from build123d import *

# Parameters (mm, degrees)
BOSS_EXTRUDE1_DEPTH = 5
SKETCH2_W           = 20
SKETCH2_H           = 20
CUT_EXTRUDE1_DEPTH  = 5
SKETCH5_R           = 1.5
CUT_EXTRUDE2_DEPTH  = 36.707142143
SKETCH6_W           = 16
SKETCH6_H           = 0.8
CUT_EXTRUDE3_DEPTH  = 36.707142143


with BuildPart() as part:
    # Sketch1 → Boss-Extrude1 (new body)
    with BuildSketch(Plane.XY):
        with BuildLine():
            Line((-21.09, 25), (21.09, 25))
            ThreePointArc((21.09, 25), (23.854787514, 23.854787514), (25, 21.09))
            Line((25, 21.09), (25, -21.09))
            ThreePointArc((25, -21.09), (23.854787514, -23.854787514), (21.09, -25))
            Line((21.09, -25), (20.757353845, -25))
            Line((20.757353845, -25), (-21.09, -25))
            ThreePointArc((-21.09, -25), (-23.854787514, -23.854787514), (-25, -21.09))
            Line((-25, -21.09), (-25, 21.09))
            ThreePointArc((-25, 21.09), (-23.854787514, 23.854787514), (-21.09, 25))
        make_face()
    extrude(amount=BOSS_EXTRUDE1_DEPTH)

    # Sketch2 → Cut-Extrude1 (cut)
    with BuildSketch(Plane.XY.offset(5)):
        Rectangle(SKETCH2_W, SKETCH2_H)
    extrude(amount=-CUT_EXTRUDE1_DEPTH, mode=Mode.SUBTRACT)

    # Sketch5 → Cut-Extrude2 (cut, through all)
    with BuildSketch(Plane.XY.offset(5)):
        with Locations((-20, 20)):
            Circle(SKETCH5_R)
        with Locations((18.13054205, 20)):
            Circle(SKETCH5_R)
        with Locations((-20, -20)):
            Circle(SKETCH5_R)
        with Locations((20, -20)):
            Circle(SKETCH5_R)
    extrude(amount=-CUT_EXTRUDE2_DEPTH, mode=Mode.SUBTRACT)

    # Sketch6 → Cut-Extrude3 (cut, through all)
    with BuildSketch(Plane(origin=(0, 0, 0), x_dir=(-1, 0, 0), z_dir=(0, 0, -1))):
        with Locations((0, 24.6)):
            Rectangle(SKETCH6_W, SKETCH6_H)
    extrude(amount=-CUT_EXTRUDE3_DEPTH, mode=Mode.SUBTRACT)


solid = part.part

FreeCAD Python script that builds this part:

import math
import FreeCAD as App
import Part
import Sketcher
from FreeCAD import Vector

doc = App.newDocument("Part")
body = doc.addObject("PartDesign::Body", "Body")

sketch1 = doc.addObject("Sketcher::SketchObject", "Sketch")
body.addObject(sketch1)
sketch1.AttachmentSupport = (doc.XY_Plane, [""])
sketch1.MapMode = "FlatFace"
sketch1.addGeometry(Part.LineSegment(Vector(21.1, 25, 0), Vector(-21.1, 25, 0)), False)
sketch1.addGeometry(Part.ArcOfCircle(Part.Circle(Vector(-21.1, 21.1, 0), Vector(0, 0, 1), 3.9), math.radians(90), math.radians(180)), False)
sketch1.addGeometry(Part.LineSegment(Vector(-25, 21.1, 0), Vector(-25, -21.1, 0)), False)
sketch1.addGeometry(Part.ArcOfCircle(Part.Circle(Vector(-21.1, -21.1, 0), Vector(0, 0, 1), 3.9), math.radians(-180), math.radians(-90)), False)
sketch1.addGeometry(Part.LineSegment(Vector(-21.1, -25, 0), Vector(21.1, -25, 0)), False)
sketch1.addGeometry(Part.ArcOfCircle(Part.Circle(Vector(21.1, -21.1, 0), Vector(0, 0, 1), 3.9), math.radians(-90), math.radians(0)), False)
sketch1.addGeometry(Part.LineSegment(Vector(25, -21.1, 0), Vector(25, 21.1, 0)), False)
sketch1.addGeometry(Part.ArcOfCircle(Part.Circle(Vector(21.1, 21.1, 0), Vector(0, 0, 1), 3.9), math.radians(0), math.radians(90)), False)
sketch1.addConstraint(Sketcher.Constraint("Tangent", 0, 2, 1, 1))
sketch1.addConstraint(Sketcher.Constraint("Tangent", 1, 2, 2, 1))
sketch1.addConstraint(Sketcher.Constraint("Tangent", 2, 2, 3, 1))
sketch1.addConstraint(Sketcher.Constraint("Tangent", 3, 2, 4, 1))
sketch1.addConstraint(Sketcher.Constraint("Tangent", 4, 2, 5, 1))
sketch1.addConstraint(Sketcher.Constraint("Tangent", 5, 2, 6, 1))
sketch1.addConstraint(Sketcher.Constraint("Tangent", 6, 2, 7, 1))
sketch1.addConstraint(Sketcher.Constraint("Tangent", 7, 2, 0, 1))
sketch1.addConstraint(Sketcher.Constraint("Horizontal", 0))
sketch1.addConstraint(Sketcher.Constraint("Vertical", 2))
sketch1.addConstraint(Sketcher.Constraint("Horizontal", 4))
sketch1.addConstraint(Sketcher.Constraint("Vertical", 6))
sketch1.addConstraint(Sketcher.Constraint("Equal", 1, 3))
sketch1.addConstraint(Sketcher.Constraint("Equal", 3, 5))
sketch1.addConstraint(Sketcher.Constraint("Equal", 5, 7))
sketch1.addConstraint(Sketcher.Constraint("Symmetric", 1, 3, 5, 3, -1, 1))
sketch1.addConstraint(Sketcher.Constraint("Equal", 4, 2))
sketch1.addConstraint(Sketcher.Constraint("Radius", 1, 3.91))
sketch1.addConstraint(Sketcher.Constraint("DistanceY", -1, 1, 0, 2, 25.0))
pad1 = doc.addObject("PartDesign::Pad", "Pad")
body.addObject(pad1)
pad1.Profile = sketch1
pad1.Length = 5

sketch2 = doc.addObject("Sketcher::SketchObject", "Sketch001")
body.addObject(sketch2)
sketch2.AttachmentSupport = (doc.XY_Plane, [""])
sketch2.MapMode = "FlatFace"
sketch2.AttachmentOffset = App.Placement(Vector(0, 0, 5), App.Rotation())
sketch2.addGeometry(Part.LineSegment(Vector(-10, 10, 0), Vector(-10, -10, 0)), False)
sketch2.addGeometry(Part.LineSegment(Vector(-10, -10, 0), Vector(10, -10, 0)), False)
sketch2.addGeometry(Part.LineSegment(Vector(10, -10, 0), Vector(10, 10, 0)), False)
sketch2.addGeometry(Part.LineSegment(Vector(10, 10, 0), Vector(-10, 10, 0)), False)
sketch2.addConstraint(Sketcher.Constraint("Coincident", 0, 2, 1, 1))
sketch2.addConstraint(Sketcher.Constraint("Coincident", 1, 2, 2, 1))
sketch2.addConstraint(Sketcher.Constraint("Coincident", 2, 2, 3, 1))
sketch2.addConstraint(Sketcher.Constraint("Coincident", 3, 2, 0, 1))
sketch2.addConstraint(Sketcher.Constraint("Vertical", 0))
sketch2.addConstraint(Sketcher.Constraint("Horizontal", 1))
sketch2.addConstraint(Sketcher.Constraint("Vertical", 2))
sketch2.addConstraint(Sketcher.Constraint("Horizontal", 3))
sketch2.addConstraint(Sketcher.Constraint("Symmetric", 0, 2, 2, 2, -1, 1))
sketch2.addConstraint(Sketcher.Constraint("Equal", 3, 0))
sketch2.addConstraint(Sketcher.Constraint("DistanceX", 1, 1, 1, 2, 20.0))
pocket1 = doc.addObject("PartDesign::Pocket", "Pocket")
body.addObject(pocket1)
pocket1.Profile = sketch2
pocket1.Length = 5

sketch3 = doc.addObject("Sketcher::SketchObject", "Sketch002")
body.addObject(sketch3)
sketch3.AttachmentSupport = (doc.XY_Plane, [""])
sketch3.MapMode = "FlatFace"
sketch3.AttachmentOffset = App.Placement(Vector(0, 0, 5), App.Rotation())
sketch3.addGeometry(Part.Circle(Vector(-20, 20, 0), Vector(0, 0, 1), 1.5), False)
sketch3.addGeometry(Part.Circle(Vector(18.1, 20, 0), Vector(0, 0, 1), 1.5), False)
sketch3.addGeometry(Part.Circle(Vector(-20, -20, 0), Vector(0, 0, 1), 1.5), False)
sketch3.addGeometry(Part.Circle(Vector(20, -20, 0), Vector(0, 0, 1), 1.5), False)
sketch3.addConstraint(Sketcher.Constraint("Equal", 0, 1))
sketch3.addConstraint(Sketcher.Constraint("Equal", 1, 2))
sketch3.addConstraint(Sketcher.Constraint("Equal", 2, 3))
sketch3.addConstraint(Sketcher.Constraint("Symmetric", 0, 3, 3, 3, -1, 1))
sketch3.addConstraint(Sketcher.Constraint("Symmetric", 2, 3, 3, 3, -2))
sketch3.addConstraint(Sketcher.Constraint("Horizontal", 0, 3, 1, 3))
sketch3.addConstraint(Sketcher.Constraint("Diameter", 0, 3.0))
sketch3.addConstraint(Sketcher.Constraint("DistanceX", 0, 3, -1, 1, 20.0))
sketch3.addConstraint(Sketcher.Constraint("DistanceY", -1, 1, 0, 3, 20.0))
sketch3.addConstraint(Sketcher.Constraint("DistanceX", -1, 1, 1, 3, 18.130542))
pocket2 = doc.addObject("PartDesign::Pocket", "Pocket001")
body.addObject(pocket2)
pocket2.Profile = sketch3
pocket2.Type = "ThroughAll"

sketch4 = doc.addObject("Sketcher::SketchObject", "Sketch003")
body.addObject(sketch4)
sketch4.AttachmentSupport = (doc.XY_Plane, [""])
sketch4.MapMode = "FlatFace"
sketch4.addGeometry(Part.LineSegment(Vector(8, 25, 0), Vector(8, 24.2, 0)), False)
sketch4.addGeometry(Part.LineSegment(Vector(8, 24.2, 0), Vector(-8, 24.2, 0)), False)
sketch4.addGeometry(Part.LineSegment(Vector(-8, 24.2, 0), Vector(-8, 25, 0)), False)
sketch4.addGeometry(Part.LineSegment(Vector(-8, 25, 0), Vector(8, 25, 0)), False)
sketch4.addConstraint(Sketcher.Constraint("Coincident", 0, 2, 1, 1))
sketch4.addConstraint(Sketcher.Constraint("Coincident", 1, 2, 2, 1))
sketch4.addConstraint(Sketcher.Constraint("Coincident", 2, 2, 3, 1))
sketch4.addConstraint(Sketcher.Constraint("Coincident", 3, 2, 0, 1))
sketch4.addConstraint(Sketcher.Constraint("Vertical", 0))
sketch4.addConstraint(Sketcher.Constraint("Horizontal", 1))
sketch4.addConstraint(Sketcher.Constraint("Vertical", 2))
sketch4.addConstraint(Sketcher.Constraint("Horizontal", 3))
sketch4.addConstraint(Sketcher.Constraint("DistanceX", 1, 2, 1, 1, 16.0))
sketch4.addConstraint(Sketcher.Constraint("DistanceY", 0, 2, 0, 1, 0.8))
sketch4.addConstraint(Sketcher.Constraint("DistanceX", -1, 1, 0, 2, 8.0))
sketch4.addConstraint(Sketcher.Constraint("DistanceY", -1, 1, 2, 2, 25.0))
pocket3 = doc.addObject("PartDesign::Pocket", "Pocket002")
body.addObject(pocket3)
pocket3.Profile = sketch4
pocket3.Type = "ThroughAll"
pocket3.Reversed = True

doc.recompute()
